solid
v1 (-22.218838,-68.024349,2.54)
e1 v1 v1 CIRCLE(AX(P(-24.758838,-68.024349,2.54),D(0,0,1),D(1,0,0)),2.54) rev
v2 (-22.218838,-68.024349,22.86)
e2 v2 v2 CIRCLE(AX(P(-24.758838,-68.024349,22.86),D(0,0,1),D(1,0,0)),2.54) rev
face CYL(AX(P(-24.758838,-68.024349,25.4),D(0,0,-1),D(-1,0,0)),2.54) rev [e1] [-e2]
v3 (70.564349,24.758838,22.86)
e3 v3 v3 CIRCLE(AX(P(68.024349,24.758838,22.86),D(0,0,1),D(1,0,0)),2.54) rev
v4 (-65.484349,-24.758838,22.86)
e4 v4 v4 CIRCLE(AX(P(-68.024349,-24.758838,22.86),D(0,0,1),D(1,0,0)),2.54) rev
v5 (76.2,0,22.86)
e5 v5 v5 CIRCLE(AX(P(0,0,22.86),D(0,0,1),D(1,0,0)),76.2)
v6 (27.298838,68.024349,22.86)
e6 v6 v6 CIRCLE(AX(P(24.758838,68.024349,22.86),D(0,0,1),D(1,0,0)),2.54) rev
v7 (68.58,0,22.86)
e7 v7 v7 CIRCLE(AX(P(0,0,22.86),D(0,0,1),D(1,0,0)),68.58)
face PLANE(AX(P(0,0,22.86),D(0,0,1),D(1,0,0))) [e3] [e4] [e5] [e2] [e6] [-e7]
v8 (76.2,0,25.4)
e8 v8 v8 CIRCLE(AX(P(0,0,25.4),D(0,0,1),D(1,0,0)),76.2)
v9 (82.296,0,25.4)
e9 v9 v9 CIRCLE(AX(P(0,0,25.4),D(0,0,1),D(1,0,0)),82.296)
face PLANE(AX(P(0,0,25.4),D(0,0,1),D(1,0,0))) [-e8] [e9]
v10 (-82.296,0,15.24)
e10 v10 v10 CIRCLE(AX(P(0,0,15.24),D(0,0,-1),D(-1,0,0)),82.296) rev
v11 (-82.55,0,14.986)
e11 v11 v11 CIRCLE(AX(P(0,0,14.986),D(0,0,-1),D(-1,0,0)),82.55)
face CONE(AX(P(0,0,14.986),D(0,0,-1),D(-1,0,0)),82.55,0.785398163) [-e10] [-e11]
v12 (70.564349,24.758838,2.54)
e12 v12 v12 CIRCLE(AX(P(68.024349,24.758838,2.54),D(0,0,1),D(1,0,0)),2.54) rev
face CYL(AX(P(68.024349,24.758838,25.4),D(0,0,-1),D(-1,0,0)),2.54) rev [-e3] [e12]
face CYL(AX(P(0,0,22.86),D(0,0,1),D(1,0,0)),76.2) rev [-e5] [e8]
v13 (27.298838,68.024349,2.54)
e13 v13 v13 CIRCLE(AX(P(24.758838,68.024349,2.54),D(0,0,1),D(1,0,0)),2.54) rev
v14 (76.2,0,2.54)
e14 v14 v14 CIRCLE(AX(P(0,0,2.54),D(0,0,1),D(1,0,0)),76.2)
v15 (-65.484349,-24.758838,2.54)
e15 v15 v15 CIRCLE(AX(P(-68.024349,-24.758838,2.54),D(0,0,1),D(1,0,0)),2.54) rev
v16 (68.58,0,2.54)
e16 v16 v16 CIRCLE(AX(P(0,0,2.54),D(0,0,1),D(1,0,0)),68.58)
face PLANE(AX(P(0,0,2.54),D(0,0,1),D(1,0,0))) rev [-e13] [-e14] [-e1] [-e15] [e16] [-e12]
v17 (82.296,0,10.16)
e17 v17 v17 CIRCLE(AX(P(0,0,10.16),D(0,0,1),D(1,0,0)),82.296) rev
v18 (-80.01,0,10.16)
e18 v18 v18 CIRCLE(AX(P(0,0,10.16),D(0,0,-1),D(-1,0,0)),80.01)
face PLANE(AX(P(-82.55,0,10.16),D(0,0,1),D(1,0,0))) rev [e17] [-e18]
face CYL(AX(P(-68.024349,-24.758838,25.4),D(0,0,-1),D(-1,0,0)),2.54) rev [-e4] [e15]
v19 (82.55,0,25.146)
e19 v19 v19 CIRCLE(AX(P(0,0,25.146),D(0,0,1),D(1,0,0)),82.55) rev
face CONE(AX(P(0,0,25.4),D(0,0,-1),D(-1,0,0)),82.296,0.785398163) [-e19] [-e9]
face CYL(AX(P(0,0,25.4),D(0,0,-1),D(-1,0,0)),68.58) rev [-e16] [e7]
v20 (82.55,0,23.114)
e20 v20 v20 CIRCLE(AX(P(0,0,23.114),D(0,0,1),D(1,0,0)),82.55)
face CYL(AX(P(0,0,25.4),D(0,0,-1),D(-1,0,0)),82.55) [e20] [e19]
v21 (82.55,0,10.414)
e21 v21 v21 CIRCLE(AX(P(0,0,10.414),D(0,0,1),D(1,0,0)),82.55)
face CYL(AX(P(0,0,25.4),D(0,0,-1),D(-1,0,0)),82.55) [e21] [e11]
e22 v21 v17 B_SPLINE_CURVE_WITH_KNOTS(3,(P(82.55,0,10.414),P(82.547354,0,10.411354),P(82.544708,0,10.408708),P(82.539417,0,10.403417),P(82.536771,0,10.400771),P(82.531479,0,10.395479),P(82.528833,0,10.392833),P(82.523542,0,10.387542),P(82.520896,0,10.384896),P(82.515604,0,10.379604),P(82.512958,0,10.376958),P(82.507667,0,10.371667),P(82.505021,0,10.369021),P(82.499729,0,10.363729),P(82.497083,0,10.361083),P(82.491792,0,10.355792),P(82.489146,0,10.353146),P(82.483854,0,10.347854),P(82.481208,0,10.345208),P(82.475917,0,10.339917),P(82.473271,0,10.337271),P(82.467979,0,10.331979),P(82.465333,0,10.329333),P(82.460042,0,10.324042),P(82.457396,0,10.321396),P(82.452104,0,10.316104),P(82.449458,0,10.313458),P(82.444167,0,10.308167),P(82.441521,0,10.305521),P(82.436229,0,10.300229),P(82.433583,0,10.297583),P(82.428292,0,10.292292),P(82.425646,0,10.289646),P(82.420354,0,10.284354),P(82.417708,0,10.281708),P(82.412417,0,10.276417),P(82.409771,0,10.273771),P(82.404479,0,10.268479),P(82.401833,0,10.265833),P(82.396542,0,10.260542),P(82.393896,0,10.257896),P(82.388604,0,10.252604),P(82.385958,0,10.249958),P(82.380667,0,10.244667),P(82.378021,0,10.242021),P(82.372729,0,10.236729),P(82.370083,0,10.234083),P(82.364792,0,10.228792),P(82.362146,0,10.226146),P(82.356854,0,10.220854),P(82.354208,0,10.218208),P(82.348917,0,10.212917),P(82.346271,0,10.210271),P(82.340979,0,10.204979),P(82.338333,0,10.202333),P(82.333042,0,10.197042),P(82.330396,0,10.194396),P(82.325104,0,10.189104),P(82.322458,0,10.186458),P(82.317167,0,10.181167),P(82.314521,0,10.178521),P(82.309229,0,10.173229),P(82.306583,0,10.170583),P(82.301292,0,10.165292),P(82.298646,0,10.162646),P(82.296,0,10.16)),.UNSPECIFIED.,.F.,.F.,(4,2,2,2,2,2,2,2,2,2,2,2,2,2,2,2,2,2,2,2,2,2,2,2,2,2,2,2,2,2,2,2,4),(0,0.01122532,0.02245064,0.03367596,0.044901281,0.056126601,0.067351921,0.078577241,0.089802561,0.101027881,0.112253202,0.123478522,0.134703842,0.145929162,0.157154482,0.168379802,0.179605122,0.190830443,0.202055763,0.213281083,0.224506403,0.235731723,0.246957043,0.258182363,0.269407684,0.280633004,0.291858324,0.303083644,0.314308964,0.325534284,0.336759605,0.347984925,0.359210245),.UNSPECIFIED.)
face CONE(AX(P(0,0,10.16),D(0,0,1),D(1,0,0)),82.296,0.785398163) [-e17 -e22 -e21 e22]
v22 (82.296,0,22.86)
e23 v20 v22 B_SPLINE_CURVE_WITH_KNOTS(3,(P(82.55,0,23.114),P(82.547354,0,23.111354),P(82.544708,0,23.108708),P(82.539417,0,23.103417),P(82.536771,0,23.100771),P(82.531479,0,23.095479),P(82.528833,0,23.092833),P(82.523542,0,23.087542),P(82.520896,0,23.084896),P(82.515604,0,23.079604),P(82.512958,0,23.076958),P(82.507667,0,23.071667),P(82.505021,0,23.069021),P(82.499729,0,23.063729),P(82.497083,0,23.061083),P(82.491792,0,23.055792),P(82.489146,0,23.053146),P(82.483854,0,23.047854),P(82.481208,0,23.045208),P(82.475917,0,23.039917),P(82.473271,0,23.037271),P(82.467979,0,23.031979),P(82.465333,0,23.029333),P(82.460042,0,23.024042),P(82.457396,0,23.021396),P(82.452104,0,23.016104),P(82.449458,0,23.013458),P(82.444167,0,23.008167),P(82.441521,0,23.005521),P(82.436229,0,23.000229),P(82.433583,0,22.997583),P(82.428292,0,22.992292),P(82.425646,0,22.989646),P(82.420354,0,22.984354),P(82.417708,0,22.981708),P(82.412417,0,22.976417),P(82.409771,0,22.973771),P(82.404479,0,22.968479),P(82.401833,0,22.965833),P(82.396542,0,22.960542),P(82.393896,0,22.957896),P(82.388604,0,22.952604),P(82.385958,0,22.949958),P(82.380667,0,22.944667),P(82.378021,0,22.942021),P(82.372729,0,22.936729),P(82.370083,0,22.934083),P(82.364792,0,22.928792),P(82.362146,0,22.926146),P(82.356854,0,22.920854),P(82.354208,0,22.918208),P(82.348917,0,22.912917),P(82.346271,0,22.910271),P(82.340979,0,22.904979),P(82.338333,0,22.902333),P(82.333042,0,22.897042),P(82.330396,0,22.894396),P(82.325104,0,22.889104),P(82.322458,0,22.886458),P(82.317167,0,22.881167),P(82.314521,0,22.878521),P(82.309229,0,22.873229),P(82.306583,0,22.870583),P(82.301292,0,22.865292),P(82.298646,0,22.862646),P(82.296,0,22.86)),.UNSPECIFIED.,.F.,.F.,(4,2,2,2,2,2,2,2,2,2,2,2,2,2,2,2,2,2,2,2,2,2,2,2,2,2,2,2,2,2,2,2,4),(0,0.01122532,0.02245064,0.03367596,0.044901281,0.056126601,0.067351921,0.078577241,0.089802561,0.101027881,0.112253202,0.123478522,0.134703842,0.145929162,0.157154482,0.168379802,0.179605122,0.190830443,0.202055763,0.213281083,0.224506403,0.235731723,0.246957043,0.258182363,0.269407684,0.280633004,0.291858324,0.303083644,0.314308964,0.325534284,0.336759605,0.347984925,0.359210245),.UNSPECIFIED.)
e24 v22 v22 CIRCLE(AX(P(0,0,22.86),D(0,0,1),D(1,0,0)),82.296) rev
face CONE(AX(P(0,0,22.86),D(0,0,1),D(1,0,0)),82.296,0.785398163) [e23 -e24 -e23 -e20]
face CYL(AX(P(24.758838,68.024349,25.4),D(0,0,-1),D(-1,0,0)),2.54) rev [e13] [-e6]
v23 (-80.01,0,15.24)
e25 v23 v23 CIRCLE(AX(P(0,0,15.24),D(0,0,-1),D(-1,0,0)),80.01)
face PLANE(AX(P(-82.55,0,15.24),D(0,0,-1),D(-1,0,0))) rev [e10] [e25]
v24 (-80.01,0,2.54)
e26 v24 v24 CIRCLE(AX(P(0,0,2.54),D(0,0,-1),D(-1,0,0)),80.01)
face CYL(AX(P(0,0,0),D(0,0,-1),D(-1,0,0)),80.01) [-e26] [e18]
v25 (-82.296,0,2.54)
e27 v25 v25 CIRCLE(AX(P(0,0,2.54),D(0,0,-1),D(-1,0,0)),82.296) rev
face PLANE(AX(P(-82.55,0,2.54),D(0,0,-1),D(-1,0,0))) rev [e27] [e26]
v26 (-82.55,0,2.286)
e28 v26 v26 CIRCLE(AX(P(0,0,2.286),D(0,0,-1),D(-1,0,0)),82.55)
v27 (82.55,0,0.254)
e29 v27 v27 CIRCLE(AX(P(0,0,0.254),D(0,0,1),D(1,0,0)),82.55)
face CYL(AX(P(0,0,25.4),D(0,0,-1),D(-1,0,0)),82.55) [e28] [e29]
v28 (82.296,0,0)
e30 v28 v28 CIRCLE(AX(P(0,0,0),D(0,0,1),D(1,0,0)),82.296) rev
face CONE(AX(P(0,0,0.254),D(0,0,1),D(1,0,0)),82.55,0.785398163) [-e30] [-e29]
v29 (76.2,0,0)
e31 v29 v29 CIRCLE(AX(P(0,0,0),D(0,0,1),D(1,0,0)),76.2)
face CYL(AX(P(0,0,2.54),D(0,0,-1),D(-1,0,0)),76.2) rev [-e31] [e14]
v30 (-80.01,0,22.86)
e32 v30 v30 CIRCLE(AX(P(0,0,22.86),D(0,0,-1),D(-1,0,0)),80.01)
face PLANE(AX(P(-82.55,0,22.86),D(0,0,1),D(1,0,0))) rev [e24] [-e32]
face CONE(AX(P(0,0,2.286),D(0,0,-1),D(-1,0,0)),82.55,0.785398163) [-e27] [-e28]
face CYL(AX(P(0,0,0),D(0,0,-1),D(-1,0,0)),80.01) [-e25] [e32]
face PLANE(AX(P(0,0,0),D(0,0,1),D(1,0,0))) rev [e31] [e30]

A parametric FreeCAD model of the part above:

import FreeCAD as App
import Part
import Sketcher
Q = App.Units.Quantity


def edges_at(feature, points):
    """Names of the edges that pass closest to the given points."""
    edges = feature.Shape.Edges
    near = lambda p: min(range(len(edges)), key=lambda i: edges[i].distToShape(Part.Vertex(*p))[0])
    return sorted({f"Edge{near(p) + 1}" for p in points})

doc = App.newDocument("Part")
params = doc.addObject("Spreadsheet::Sheet", "Params")
for row, (alias, value) in enumerate([
    ("sketch1_diameter", "6.5 in"),
    ("pad1_length", "1 in"),
    ("sketch2_diameter", "5.4 in"),
    ("pocket1_length", "1 in"),
    ("sketch3_diameter", "6 in"),
    ("pocket2_length", "0.1 in"),
    ("sketch4_diameter", "6 in"),
    ("pocket3_length", "0.1 in"),
    ("sketch5_width", "0.1 in"),
    ("sketch5_height", "0.3 in"),
    ("groove_angle", "360 deg"),
    ("chamfer_size", "0.01 in"),
    ("chamfer2_size", "0.01 in"),
    ("chamfer3_size", "0.01 in"),
    ("chamfer4_size", "0.01 in"),
    ("chamfer5_size", "0.01 in"),
    ("chamfer6_size", "0.01 in"),
    ("sketch6_diameter", "0.2 in"),
], start=1):
    params.set(f"A{row}", alias)
    params.set(f"B{row}", "=" + value)
    params.setAlias(f"B{row}", alias)

body = doc.addObject("PartDesign::Body", "Body")

# Sketch on XY plane
sketch1 = body.newObject("Sketcher::SketchObject", "Sketch")
sketch1.AttachmentSupport = (doc.getObject("XY_Plane"), [""])
sketch1.MapMode = "FlatFace"
sketch1.addGeometry(Part.Circle(App.Vector(0, 0, 0), App.Vector(0, 0, 1), 83), False)
sketch1.addConstraint(Sketcher.Constraint("Coincident", 0, 3, -1, 1))
sketch1.addConstraint(Sketcher.Constraint("Diameter", 0, Q("6.5 in")))
sketch1.setExpression("Constraints[1]", "Params.sketch1_diameter")
pad1 = body.newObject("PartDesign::Pad", "Pad")
pad1.Profile = sketch1
pad1.setExpression("Length", "Params.pad1_length")

# Sketch on XY plane
sketch2 = body.newObject("Sketcher::SketchObject", "Sketch001")
sketch2.AttachmentSupport = (doc.getObject("XY_Plane"), [""])
sketch2.MapMode = "FlatFace"
sketch2.addGeometry(Part.Circle(App.Vector(0, 0, 0), App.Vector(0, 0, 1), 69), False)
sketch2.addConstraint(Sketcher.Constraint("Coincident", 0, 3, -1, 1))
sketch2.addConstraint(Sketcher.Constraint("Diameter", 0, Q("5.4 in")))
sketch2.setExpression("Constraints[1]", "Params.sketch2_diameter")
pocket1 = body.newObject("PartDesign::Pocket", "Pocket")
pocket1.Profile = sketch2
pocket1.setExpression("Length", "Params.pocket1_length")
pocket1.Reversed = True

# Sketch on XY plane
sketch3 = body.newObject("Sketcher::SketchObject", "Sketch002")
sketch3.AttachmentSupport = (doc.getObject("XY_Plane"), [""])
sketch3.MapMode = "FlatFace"
sketch3.addGeometry(Part.Circle(App.Vector(0, 0, 0), App.Vector(0, 0, 1), 76), False)
sketch3.addConstraint(Sketcher.Constraint("Coincident", 0, 3, -1, 1))
sketch3.addConstraint(Sketcher.Constraint("Diameter", 0, Q("6 in")))
sketch3.setExpression("Constraints[1]", "Params.sketch3_diameter")
pocket2 = body.newObject("PartDesign::Pocket", "Pocket001")
pocket2.Profile = sketch3
pocket2.setExpression("Length", "Params.pocket2_length")
pocket2.Reversed = True

# Sketch on XY plane
sketch4 = body.newObject("Sketcher::SketchObject", "Sketch003")
sketch4.AttachmentSupport = (doc.getObject("XY_Plane"), [""])
sketch4.MapMode = "FlatFace"
sketch4.AttachmentOffset = App.Placement(App.Vector(0, 0, 0.9 * 25.4), App.Rotation())
sketch4.addGeometry(Part.Circle(App.Vector(0, 0, 0), App.Vector(0, 0, 1), 76), False)
sketch4.addConstraint(Sketcher.Constraint("Coincident", 0, 3, -1, 1))
sketch4.addConstraint(Sketcher.Constraint("Diameter", 0, Q("6 in")))
sketch4.setExpression("Constraints[1]", "Params.sketch4_diameter")
pocket3 = body.newObject("PartDesign::Pocket", "Pocket002")
pocket3.Profile = sketch4
pocket3.setExpression("Length", "Params.pocket3_length")
pocket3.Reversed = True

# Sketch on XZ plane
sketch5 = body.newObject("Sketcher::SketchObject", "Sketch004")
sketch5.AttachmentSupport = (doc.getObject("XZ_Plane"), [""])
sketch5.MapMode = "FlatFace"
sketch5.addGeometry(Part.LineSegment(App.Vector(-82.5, 2.5, 0), App.Vector(-82.5, 10.2, 0)), False)
sketch5.addGeometry(Part.LineSegment(App.Vector(-82.5, 10.2, 0), App.Vector(-80, 10.2, 0)), False)
sketch5.addGeometry(Part.LineSegment(App.Vector(-80, 10.2, 0), App.Vector(-80, 2.5, 0)), False)
sketch5.addGeometry(Part.LineSegment(App.Vector(-80, 2.5, 0), App.Vector(-82.5, 2.5, 0)), False)
sketch5.addGeometry(Part.LineSegment(App.Vector(-82.5, 15.2, 0), App.Vector(-82.5, 22.9, 0)), False)
sketch5.addGeometry(Part.LineSegment(App.Vector(-82.5, 22.9, 0), App.Vector(-80, 22.9, 0)), False)
sketch5.addGeometry(Part.LineSegment(App.Vector(-80, 22.9, 0), App.Vector(-80, 15.2, 0)), False)
sketch5.addGeometry(Part.LineSegment(App.Vector(-80, 15.2, 0), App.Vector(-82.5, 15.2, 0)), False)
sketch5.addConstraint(Sketcher.Constraint("Coincident", 0, 2, 1, 1))
sketch5.addConstraint(Sketcher.Constraint("Coincident", 1, 2, 2, 1))
sketch5.addConstraint(Sketcher.Constraint("Coincident", 2, 2, 3, 1))
sketch5.addConstraint(Sketcher.Constraint("Coincident", 3, 2, 0, 1))
sketch5.addConstraint(Sketcher.Constraint("Coincident", 4, 2, 5, 1))
sketch5.addConstraint(Sketcher.Constraint("Coincident", 5, 2, 6, 1))
sketch5.addConstraint(Sketcher.Constraint("Coincident", 6, 2, 7, 1))
sketch5.addConstraint(Sketcher.Constraint("Coincident", 7, 2, 4, 1))
sketch5.addConstraint(Sketcher.Constraint("Vertical", 0))
sketch5.addConstraint(Sketcher.Constraint("Horizontal", 1))
sketch5.addConstraint(Sketcher.Constraint("Vertical", 2))
sketch5.addConstraint(Sketcher.Constraint("Horizontal", 3))
sketch5.addConstraint(Sketcher.Constraint("Vertical", 4))
sketch5.addConstraint(Sketcher.Constraint("Horizontal", 5))
sketch5.addConstraint(Sketcher.Constraint("Vertical", 6))
sketch5.addConstraint(Sketcher.Constraint("Horizontal", 7))
sketch5.addConstraint(Sketcher.Constraint("Vertical", 3, 2, 4, 2))
sketch5.addConstraint(Sketcher.Constraint("Vertical", 2, 2, 5, 2))
sketch5.addConstraint(Sketcher.Constraint("Equal", 2, 4))
sketch5.addConstraint(Sketcher.Constraint("DistanceX", 1, 1, 1, 2, Q("0.1 in")))
sketch5.addConstraint(Sketcher.Constraint("DistanceY", 0, 1, 0, 2, Q("0.3 in")))
sketch5.addConstraint(Sketcher.Constraint("DistanceY", -1, 1, 0, 2, Q("0.4 in")))
sketch5.addConstraint(Sketcher.Constraint("DistanceY", -1, 1, 4, 2, Q("0.9 in")))
sketch5.addConstraint(Sketcher.Constraint("DistanceX", 0, 2, -1, 1, Q("3.25 in")))
sketch5.setExpression("Constraints[19]", "Params.sketch5_width")
sketch5.setExpression("Constraints[20]", "Params.sketch5_height")
groove = body.newObject("PartDesign::Groove", "Groove")
groove.Profile = sketch5
groove.ReferenceAxis = (sketch5, ["V_Axis"])
groove.setExpression("Angle", "Params.groove_angle")
doc.recompute()

chamfer = body.newObject("PartDesign::Chamfer", "Chamfer")
chamfer.Base = (groove, edges_at(groove, [(-82.55, 0, 10.16)]))
chamfer.setExpression("Size", "Params.chamfer_size")
doc.recompute()

chamfer2 = body.newObject("PartDesign::Chamfer", "Chamfer001")
chamfer2.Base = (chamfer, edges_at(chamfer, [(-82.55, 0, 15.24)]))
chamfer2.setExpression("Size", "Params.chamfer2_size")
doc.recompute()

chamfer3 = body.newObject("PartDesign::Chamfer", "Chamfer002")
chamfer3.Base = (chamfer2, edges_at(chamfer2, [(-82.55, 0, 2.54)]))
chamfer3.setExpression("Size", "Params.chamfer3_size")
doc.recompute()

chamfer4 = body.newObject("PartDesign::Chamfer", "Chamfer003")
chamfer4.Base = (chamfer3, edges_at(chamfer3, [(-82.55, 0, 22.86)]))
chamfer4.setExpression("Size", "Params.chamfer4_size")
doc.recompute()

chamfer5 = body.newObject("PartDesign::Chamfer", "Chamfer004")
chamfer5.Base = (chamfer4, edges_at(chamfer4, [(-82.55, 0, 0)]))
chamfer5.setExpression("Size", "Params.chamfer5_size")
doc.recompute()

chamfer6 = body.newObject("PartDesign::Chamfer", "Chamfer005")
chamfer6.Base = (chamfer5, edges_at(chamfer5, [(-82.55, 0, 25.4)]))
chamfer6.setExpression("Size", "Params.chamfer6_size")

# Sketch on XY plane
sketch6 = body.newObject("Sketcher::SketchObject", "Sketch005")
sketch6.AttachmentSupport = (doc.getObject("XY_Plane"), [""])
sketch6.MapMode = "FlatFace"
sketch6.addGeometry(Part.Circle(App.Vector(68, 24.8, 0), App.Vector(0, 0, 1), 2.5), False)
sketch6.addGeometry(Part.Circle(App.Vector(-68, -24.8, 0), App.Vector(0, 0, 1), 2.5), False)
sketch6.addGeometry(Part.Circle(App.Vector(24.8, 68, 0), App.Vector(0, 0, 1), 2.5), False)
sketch6.addGeometry(Part.Circle(App.Vector(-24.8, -68, 0), App.Vector(0, 0, 1), 2.5), False)
sketch6.addConstraint(Sketcher.Constraint("Equal", 0, 1))
sketch6.addConstraint(Sketcher.Constraint("Equal", 1, 2))
sketch6.addConstraint(Sketcher.Constraint("Equal", 2, 3))
sketch6.addConstraint(Sketcher.Constraint("Symmetric", 0, 3, 1, 3, -1, 1))
sketch6.addConstraint(Sketcher.Constraint("Symmetric", 2, 3, 3, 3, -1, 1))
sketch6.addConstraint(Sketcher.Constraint("Diameter", 0, Q("0.2 in")))
sketch6.addConstraint(Sketcher.Constraint("DistanceX", -1, 1, 0, 3, Q("68.024349 mm")))
sketch6.addConstraint(Sketcher.Constraint("DistanceY", -1, 1, 0, 3, Q("24.758838 mm")))
sketch6.addConstraint(Sketcher.Constraint("DistanceX", -1, 1, 2, 3, Q("24.758838 mm")))
sketch6.addConstraint(Sketcher.Constraint("DistanceY", -1, 1, 2, 3, Q("68.024349 mm")))
sketch6.setExpression("Constraints[5]", "Params.sketch6_diameter")
pocket4 = body.newObject("PartDesign::Pocket", "Pocket003")
pocket4.Profile = sketch6
pocket4.Type = "ThroughAll"
pocket4.Reversed = True

doc.recompute()
